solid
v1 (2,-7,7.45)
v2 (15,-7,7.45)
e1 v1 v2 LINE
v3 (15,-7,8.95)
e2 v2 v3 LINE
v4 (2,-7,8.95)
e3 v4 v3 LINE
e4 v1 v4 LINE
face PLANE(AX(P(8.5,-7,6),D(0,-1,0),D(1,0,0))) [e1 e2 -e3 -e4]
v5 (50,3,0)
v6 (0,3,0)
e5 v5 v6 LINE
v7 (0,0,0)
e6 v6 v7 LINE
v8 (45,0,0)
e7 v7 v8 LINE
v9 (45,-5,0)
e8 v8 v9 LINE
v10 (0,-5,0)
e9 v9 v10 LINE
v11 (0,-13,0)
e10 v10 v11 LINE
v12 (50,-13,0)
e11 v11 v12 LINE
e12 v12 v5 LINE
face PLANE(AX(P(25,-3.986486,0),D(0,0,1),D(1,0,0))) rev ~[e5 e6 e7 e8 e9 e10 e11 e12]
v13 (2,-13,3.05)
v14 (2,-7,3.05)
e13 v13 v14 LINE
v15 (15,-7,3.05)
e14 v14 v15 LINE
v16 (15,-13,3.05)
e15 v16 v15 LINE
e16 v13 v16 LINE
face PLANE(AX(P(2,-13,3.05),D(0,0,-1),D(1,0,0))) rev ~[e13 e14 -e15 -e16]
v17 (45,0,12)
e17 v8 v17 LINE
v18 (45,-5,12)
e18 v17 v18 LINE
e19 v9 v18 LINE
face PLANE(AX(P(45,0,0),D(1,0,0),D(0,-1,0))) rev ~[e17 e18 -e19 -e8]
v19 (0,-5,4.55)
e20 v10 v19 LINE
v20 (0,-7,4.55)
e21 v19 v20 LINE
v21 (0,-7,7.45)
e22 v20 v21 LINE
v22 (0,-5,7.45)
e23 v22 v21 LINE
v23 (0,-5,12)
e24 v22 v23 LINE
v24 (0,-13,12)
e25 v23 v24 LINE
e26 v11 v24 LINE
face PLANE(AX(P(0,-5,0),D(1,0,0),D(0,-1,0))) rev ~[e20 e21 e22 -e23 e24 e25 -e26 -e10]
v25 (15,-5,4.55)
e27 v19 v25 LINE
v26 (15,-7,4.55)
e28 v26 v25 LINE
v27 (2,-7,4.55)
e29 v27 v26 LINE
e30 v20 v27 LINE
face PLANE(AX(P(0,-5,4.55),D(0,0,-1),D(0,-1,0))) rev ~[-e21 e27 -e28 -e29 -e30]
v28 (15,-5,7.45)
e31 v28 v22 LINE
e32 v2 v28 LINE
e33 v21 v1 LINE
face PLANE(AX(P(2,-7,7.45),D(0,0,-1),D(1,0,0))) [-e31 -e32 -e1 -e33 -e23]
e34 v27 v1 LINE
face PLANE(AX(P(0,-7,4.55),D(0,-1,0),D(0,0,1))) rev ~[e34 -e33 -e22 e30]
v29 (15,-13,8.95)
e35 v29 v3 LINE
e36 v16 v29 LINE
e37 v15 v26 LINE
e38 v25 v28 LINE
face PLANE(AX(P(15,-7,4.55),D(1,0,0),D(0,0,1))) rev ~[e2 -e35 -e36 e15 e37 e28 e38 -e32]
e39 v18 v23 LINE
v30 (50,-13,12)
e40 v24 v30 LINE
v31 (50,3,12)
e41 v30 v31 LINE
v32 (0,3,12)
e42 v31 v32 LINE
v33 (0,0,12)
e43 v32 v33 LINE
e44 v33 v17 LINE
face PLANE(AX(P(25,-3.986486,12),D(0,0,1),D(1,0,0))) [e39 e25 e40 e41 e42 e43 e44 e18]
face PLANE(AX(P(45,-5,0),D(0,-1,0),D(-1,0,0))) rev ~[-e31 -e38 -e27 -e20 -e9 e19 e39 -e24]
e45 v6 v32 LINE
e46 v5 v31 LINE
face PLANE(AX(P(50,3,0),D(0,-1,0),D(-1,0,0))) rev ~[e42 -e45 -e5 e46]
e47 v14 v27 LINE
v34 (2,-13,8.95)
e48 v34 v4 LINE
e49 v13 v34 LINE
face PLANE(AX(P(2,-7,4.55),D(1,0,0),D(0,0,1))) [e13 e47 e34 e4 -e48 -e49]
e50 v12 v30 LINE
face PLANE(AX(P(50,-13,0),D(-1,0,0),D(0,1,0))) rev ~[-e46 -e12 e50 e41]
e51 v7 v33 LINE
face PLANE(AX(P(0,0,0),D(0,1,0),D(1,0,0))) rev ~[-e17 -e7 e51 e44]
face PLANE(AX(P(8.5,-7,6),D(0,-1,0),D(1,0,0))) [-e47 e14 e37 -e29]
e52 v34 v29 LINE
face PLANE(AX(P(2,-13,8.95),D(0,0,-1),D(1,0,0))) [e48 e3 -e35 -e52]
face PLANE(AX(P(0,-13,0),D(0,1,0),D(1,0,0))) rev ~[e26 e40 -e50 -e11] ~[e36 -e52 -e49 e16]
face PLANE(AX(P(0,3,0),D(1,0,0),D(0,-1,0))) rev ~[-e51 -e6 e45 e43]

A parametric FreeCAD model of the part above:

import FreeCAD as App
import Part
import Sketcher

V = App.Vector


def add_polygon(sketch, points):
    """Adds a closed chain of lines whose ends are joined by coincident constraints."""
    first, n = sketch.GeometryCount, len(points)
    for a, b in zip(points, points[1:] + points[:1]):
        sketch.addGeometry(Part.LineSegment(App.Vector(*a, 0), App.Vector(*b, 0)), False)
    for i in range(n):
        sketch.addConstraint(Sketcher.Constraint("Coincident", first + i, 2, first + (i + 1) % n, 1))

doc = App.newDocument("Part")
body = doc.addObject("PartDesign::Body", "Body")

# Sketch on XY plane
sketch1 = doc.addObject("Sketcher::SketchObject", "Sketch")
body.addObject(sketch1)
sketch1.AttachmentSupport = (doc.XY_Plane, [""])
sketch1.MapMode = "FlatFace"
add_polygon(sketch1, [(0, 3), (0, 0), (45, 0), (45, -5), (0, -5), (0, -13), (50, -13), (50, 3)])  # lines 0-7
sketch1.addConstraint(Sketcher.Constraint("Vertical", 0))
sketch1.addConstraint(Sketcher.Constraint("Horizontal", 1))
sketch1.addConstraint(Sketcher.Constraint("Vertical", 2))
sketch1.addConstraint(Sketcher.Constraint("Horizontal", 3))
sketch1.addConstraint(Sketcher.Constraint("Vertical", 4))
sketch1.addConstraint(Sketcher.Constraint("Horizontal", 5))
sketch1.addConstraint(Sketcher.Constraint("Vertical", 6))
sketch1.addConstraint(Sketcher.Constraint("Horizontal", 7))
sketch1.addConstraint(Sketcher.Constraint("Coincident", 0, 2, -1, 1))
sketch1.addConstraint(Sketcher.Constraint("PointOnObject", 3, 2, -2))
sketch1.addConstraint(Sketcher.Constraint("DistanceX", 1, 1, 1, 2, 45.0))
sketch1.addConstraint(Sketcher.Constraint("DistanceX", 5, 1, 5, 2, 50.0))
sketch1.addConstraint(Sketcher.Constraint("DistanceY", 0, 2, 0, 1, 3.0))
sketch1.addConstraint(Sketcher.Constraint("DistanceY", 2, 2, 2, 1, 5.0))
sketch1.addConstraint(Sketcher.Constraint("DistanceY", 4, 2, 4, 1, 8.0))
pad1 = doc.addObject("PartDesign::Pad", "Pad")
body.addObject(pad1)
pad1.Profile = sketch1
pad1.Length = 12

# Sketch on XZ plane
sketch2 = doc.addObject("Sketcher::SketchObject", "Sketch001")
body.addObject(sketch2)
sketch2.AttachmentSupport = (doc.XZ_Plane, [""])
sketch2.MapMode = "FlatFace"
sketch2.AttachmentOffset = App.Placement(V(0, 0, 13), App.Rotation())
add_polygon(sketch2, [(2, 9), (2, 3), (15, 3), (15, 9)])  # lines 0-3
sketch2.addConstraint(Sketcher.Constraint("Vertical", 0))
sketch2.addConstraint(Sketcher.Constraint("Horizontal", 1))
sketch2.addConstraint(Sketcher.Constraint("Vertical", 2))
sketch2.addConstraint(Sketcher.Constraint("Horizontal", 3))
sketch2.addConstraint(Sketcher.Constraint("DistanceX", 1, 1, 1, 2, 13.0))
sketch2.addConstraint(Sketcher.Constraint("DistanceY", 0, 2, 0, 1, 5.9))
sketch2.addConstraint(Sketcher.Constraint("DistanceX", -1, 1, 0, 2, 2.0))
sketch2.addConstraint(Sketcher.Constraint("DistanceY", -1, 1, 0, 2, 3.05))
pocket1 = doc.addObject("PartDesign::Pocket", "Pocket")
body.addObject(pocket1)
pocket1.Profile = sketch2
pocket1.Length = 6

# Sketch on XZ plane
sketch3 = doc.addObject("Sketcher::SketchObject", "Sketch002")
body.addObject(sketch3)
sketch3.AttachmentSupport = (doc.XZ_Plane, [""])
sketch3.MapMode = "FlatFace"
sketch3.AttachmentOffset = App.Placement(V(0, 0, 7), App.Rotation())
add_polygon(sketch3, [(2, 7.5), (2, 4.5), (15, 4.5), (15, 7.5)])  # lines 0-3
sketch3.addConstraint(Sketcher.Constraint("Vertical", 0))
sketch3.addConstraint(Sketcher.Constraint("Horizontal", 1))
sketch3.addConstraint(Sketcher.Constraint("Vertical", 2))
sketch3.addConstraint(Sketcher.Constraint("Horizontal", 3))
sketch3.addConstraint(Sketcher.Constraint("DistanceX", 1, 1, 1, 2, 13.0))
sketch3.addConstraint(Sketcher.Constraint("DistanceY", 0, 2, 0, 1, 2.9))
sketch3.addConstraint(Sketcher.Constraint("DistanceX", -1, 1, 0, 2, 2.0))
sketch3.addConstraint(Sketcher.Constraint("DistanceY", -1, 1, 0, 2, 4.55))
pocket2 = doc.addObject("PartDesign::Pocket", "Pocket001")
body.addObject(pocket2)
pocket2.Profile = sketch3
pocket2.Length = 2

# Sketch on YZ plane
sketch4 = doc.addObject("Sketcher::SketchObject", "Sketch003")
body.addObject(sketch4)
sketch4.AttachmentSupport = (doc.YZ_Plane, [""])
sketch4.MapMode = "FlatFace"
add_polygon(sketch4, [(-5, 7.5), (-5, 4.5), (-7, 4.5), (-7, 7.5)])  # lines 0-3
sketch4.addConstraint(Sketcher.Constraint("Vertical", 0))
sketch4.addConstraint(Sketcher.Constraint("Horizontal", 1))
sketch4.addConstraint(Sketcher.Constraint("Vertical", 2))
sketch4.addConstraint(Sketcher.Constraint("Horizontal", 3))
sketch4.addConstraint(Sketcher.Constraint("DistanceX", 1, 2, 1, 1, 2.0))
sketch4.addConstraint(Sketcher.Constraint("DistanceY", 0, 2, 0, 1, 2.9))
sketch4.addConstraint(Sketcher.Constraint("DistanceX", 0, 2, -1, 1, 5.0))
sketch4.addConstraint(Sketcher.Constraint("DistanceY", -1, 1, 0, 2, 4.55))
pocket3 = doc.addObject("PartDesign::Pocket", "Pocket002")
body.addObject(pocket3)
pocket3.Profile = sketch4
pocket3.Length = 2
pocket3.Reversed = True

doc.recompute()
